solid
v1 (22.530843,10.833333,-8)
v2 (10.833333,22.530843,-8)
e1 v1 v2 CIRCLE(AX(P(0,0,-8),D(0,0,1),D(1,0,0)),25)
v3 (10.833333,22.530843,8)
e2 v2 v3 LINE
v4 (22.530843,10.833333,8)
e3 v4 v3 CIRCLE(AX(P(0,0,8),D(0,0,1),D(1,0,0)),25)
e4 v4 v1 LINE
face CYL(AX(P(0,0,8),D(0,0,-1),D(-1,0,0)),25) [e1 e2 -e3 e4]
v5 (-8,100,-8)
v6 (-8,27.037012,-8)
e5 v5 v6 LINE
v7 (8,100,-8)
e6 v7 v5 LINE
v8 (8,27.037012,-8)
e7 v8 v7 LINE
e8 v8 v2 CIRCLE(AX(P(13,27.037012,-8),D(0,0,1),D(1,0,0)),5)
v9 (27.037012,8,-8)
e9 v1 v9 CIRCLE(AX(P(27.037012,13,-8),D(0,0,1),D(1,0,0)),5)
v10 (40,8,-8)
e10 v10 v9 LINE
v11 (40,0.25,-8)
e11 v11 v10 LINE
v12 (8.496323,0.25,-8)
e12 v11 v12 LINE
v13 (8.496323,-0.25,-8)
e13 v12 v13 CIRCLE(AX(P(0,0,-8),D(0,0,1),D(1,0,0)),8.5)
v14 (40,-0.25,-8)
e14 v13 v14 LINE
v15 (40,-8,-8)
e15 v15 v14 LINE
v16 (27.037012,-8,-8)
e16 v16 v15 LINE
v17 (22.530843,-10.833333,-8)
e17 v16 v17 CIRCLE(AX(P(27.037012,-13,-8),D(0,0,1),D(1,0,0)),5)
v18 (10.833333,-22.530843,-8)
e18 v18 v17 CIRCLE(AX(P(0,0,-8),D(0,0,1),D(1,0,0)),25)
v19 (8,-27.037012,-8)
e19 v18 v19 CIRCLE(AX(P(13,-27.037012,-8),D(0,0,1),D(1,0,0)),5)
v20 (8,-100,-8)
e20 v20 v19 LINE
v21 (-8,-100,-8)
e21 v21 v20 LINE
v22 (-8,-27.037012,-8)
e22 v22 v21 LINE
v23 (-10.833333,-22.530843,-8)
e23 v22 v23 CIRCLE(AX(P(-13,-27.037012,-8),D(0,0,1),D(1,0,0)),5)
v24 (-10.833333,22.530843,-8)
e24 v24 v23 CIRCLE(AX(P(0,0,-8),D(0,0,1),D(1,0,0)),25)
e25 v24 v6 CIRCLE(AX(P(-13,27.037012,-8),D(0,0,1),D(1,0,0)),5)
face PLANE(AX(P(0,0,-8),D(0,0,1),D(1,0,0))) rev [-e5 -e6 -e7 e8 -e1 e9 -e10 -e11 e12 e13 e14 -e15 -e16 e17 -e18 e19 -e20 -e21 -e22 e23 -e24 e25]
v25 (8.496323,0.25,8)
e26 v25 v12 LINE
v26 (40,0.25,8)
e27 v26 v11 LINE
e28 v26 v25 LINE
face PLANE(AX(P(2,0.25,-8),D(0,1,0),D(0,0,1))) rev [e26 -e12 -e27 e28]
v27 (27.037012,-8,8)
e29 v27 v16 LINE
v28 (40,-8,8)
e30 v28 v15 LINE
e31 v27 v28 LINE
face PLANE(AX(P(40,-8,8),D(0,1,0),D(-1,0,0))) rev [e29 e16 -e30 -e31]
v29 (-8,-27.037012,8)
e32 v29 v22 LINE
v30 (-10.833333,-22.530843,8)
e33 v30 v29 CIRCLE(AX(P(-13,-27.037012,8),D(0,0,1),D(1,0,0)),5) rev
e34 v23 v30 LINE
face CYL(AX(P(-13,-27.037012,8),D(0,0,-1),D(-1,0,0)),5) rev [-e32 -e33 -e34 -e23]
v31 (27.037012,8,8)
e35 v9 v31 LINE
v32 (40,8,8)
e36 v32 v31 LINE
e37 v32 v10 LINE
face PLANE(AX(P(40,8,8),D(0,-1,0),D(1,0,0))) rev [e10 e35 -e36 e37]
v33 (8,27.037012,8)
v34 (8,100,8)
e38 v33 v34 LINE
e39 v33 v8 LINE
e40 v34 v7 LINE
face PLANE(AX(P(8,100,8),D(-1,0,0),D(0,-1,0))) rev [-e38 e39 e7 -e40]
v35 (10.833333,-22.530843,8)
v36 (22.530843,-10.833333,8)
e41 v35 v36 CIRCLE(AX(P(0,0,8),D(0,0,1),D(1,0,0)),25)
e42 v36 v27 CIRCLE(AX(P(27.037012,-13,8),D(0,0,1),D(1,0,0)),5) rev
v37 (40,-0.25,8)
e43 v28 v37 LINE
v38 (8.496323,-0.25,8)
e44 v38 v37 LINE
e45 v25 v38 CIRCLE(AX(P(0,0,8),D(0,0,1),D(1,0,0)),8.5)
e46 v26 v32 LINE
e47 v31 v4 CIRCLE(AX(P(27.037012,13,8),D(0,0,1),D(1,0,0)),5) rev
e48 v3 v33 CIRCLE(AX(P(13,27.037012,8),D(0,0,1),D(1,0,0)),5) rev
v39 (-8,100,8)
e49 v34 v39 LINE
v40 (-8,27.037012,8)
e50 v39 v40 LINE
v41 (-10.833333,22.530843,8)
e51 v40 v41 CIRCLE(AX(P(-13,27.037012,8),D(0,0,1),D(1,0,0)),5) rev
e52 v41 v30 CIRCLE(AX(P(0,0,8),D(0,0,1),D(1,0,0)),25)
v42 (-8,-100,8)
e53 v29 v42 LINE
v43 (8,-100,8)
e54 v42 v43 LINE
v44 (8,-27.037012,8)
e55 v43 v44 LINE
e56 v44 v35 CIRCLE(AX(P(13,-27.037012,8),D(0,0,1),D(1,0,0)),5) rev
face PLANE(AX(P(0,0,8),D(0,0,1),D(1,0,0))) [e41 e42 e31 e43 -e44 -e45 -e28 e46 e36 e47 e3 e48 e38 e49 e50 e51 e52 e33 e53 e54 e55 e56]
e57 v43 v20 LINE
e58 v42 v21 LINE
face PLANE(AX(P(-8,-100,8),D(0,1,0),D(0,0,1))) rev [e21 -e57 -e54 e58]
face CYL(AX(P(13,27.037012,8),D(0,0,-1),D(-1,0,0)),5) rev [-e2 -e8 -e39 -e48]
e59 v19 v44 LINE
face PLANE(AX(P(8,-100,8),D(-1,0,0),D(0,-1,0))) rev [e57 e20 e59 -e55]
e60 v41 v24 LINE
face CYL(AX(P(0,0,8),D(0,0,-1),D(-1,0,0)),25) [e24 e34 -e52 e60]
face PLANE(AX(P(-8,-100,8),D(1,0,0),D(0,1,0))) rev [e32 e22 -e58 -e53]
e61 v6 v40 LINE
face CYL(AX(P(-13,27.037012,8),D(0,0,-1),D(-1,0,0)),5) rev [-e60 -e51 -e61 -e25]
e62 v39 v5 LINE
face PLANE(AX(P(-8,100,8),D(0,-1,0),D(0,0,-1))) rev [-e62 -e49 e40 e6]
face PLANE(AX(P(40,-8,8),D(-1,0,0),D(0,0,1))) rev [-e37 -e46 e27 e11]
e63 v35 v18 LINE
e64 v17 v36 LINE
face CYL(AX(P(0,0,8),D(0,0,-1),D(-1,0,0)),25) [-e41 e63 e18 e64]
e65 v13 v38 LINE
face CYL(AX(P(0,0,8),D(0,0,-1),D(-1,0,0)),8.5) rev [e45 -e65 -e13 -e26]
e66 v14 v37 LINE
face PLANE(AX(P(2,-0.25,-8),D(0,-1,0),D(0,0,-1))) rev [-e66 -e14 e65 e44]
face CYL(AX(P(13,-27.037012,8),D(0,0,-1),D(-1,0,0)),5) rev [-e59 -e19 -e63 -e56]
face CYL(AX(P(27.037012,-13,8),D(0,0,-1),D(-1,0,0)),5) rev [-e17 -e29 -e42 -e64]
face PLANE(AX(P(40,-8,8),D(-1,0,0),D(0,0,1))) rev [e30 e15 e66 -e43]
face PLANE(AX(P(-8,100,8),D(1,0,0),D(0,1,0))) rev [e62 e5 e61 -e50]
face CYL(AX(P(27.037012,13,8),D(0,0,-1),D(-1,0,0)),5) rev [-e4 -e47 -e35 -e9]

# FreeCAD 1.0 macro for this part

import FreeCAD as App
import Part
import Sketcher

V = App.Vector


def edges_at(feature, points):
    """Names of the edges that pass closest to the given points."""
    edges = feature.Shape.Edges
    near = lambda p: min(range(len(edges)), key=lambda i: edges[i].distToShape(Part.Vertex(*p))[0])
    return sorted({f"Edge{near(p) + 1}" for p in points})


def add_polygon(sketch, points):
    """Adds a closed chain of lines whose ends are joined by coincident constraints."""
    first, n = sketch.GeometryCount, len(points)
    for a, b in zip(points, points[1:] + points[:1]):
        sketch.addGeometry(Part.LineSegment(App.Vector(*a, 0), App.Vector(*b, 0)), False)
    for i in range(n):
        sketch.addConstraint(Sketcher.Constraint("Coincident", first + i, 2, first + (i + 1) % n, 1))

doc = App.newDocument("Part")
body = doc.addObject("PartDesign::Body", "Body")

# Sketch on XY plane
sketch1 = body.newObject("Sketcher::SketchObject", "Sketch")
sketch1.AttachmentSupport = (doc.getObject("XY_Plane"), [""])
sketch1.MapMode = "FlatFace"
sketch1.addGeometry(Part.Circle(V(0, 0, 0), V(0, 0, 1), 25), False)
sketch1.addGeometry(Part.Circle(V(0, 0, 0), V(0, 0, 1), 8), False)
sketch1.addConstraint(Sketcher.Constraint("Coincident", 0, 3, -1, 1))
sketch1.addConstraint(Sketcher.Constraint("Coincident", 1, 3, -1, 1))
sketch1.addConstraint(Sketcher.Constraint("Diameter", 0, 50.0))
sketch1.addConstraint(Sketcher.Constraint("Diameter", 1, 17.0))
pad1 = body.newObject("PartDesign::Pad", "Pad")
pad1.Profile = sketch1
pad1.Length = 16
pad1.Midplane = True

# Sketch on XY plane
sketch2 = body.newObject("Sketcher::SketchObject", "Sketch001")
sketch2.AttachmentSupport = (doc.getObject("XY_Plane"), [""])
sketch2.MapMode = "FlatFace"
add_polygon(sketch2, [(-8, 100), (-8, 24), (8, 24), (8, 100)])  # lines 0-3
sketch2.addConstraint(Sketcher.Constraint("Vertical", 0))
sketch2.addConstraint(Sketcher.Constraint("Horizontal", 1))
sketch2.addConstraint(Sketcher.Constraint("Vertical", 2))
sketch2.addConstraint(Sketcher.Constraint("Horizontal", 3))
sketch2.addConstraint(Sketcher.Constraint("DistanceX", 1, 1, 1, 2, 16.0))
sketch2.addConstraint(Sketcher.Constraint("DistanceX", 0, 2, -1, 1, 8.0))
sketch2.addConstraint(Sketcher.Constraint("DistanceY", -1, 1, 2, 2, 100.0))
sketch2.addConstraint(Sketcher.Constraint("DistanceY", 0, 2, 0, 1, 76.314561))
pad2 = body.newObject("PartDesign::Pad", "Pad001")
pad2.Profile = sketch2
pad2.Length = 16
pad2.Midplane = True

# Sketch on XY plane
sketch3 = body.newObject("Sketcher::SketchObject", "Sketch002")
sketch3.AttachmentSupport = (doc.getObject("XY_Plane"), [""])
sketch3.MapMode = "FlatFace"
add_polygon(sketch3, [(-8, -24), (-8, -100), (8, -100), (8, -24)])  # lines 0-3
sketch3.addConstraint(Sketcher.Constraint("Vertical", 0))
sketch3.addConstraint(Sketcher.Constraint("Horizontal", 1))
sketch3.addConstraint(Sketcher.Constraint("Vertical", 2))
sketch3.addConstraint(Sketcher.Constraint("Horizontal", 3))
sketch3.addConstraint(Sketcher.Constraint("DistanceX", 1, 1, 1, 2, 16.0))
sketch3.addConstraint(Sketcher.Constraint("DistanceX", 0, 2, -1, 1, 8.0))
sketch3.addConstraint(Sketcher.Constraint("DistanceY", 0, 2, -1, 1, 100.0))
sketch3.addConstraint(Sketcher.Constraint("DistanceY", 0, 2, 0, 1, 76.314561))
pad3 = body.newObject("PartDesign::Pad", "Pad002")
pad3.Profile = sketch3
pad3.Length = 16
pad3.Midplane = True

# Sketch on XY plane
sketch4 = body.newObject("Sketcher::SketchObject", "Sketch003")
sketch4.AttachmentSupport = (doc.getObject("XY_Plane"), [""])
sketch4.MapMode = "FlatFace"
add_polygon(sketch4, [(24, 8), (24, -8), (40, -8), (40, 8)])  # lines 0-3
sketch4.addConstraint(Sketcher.Constraint("Vertical", 0))
sketch4.addConstraint(Sketcher.Constraint("Horizontal", 1))
sketch4.addConstraint(Sketcher.Constraint("Vertical", 2))
sketch4.addConstraint(Sketcher.Constraint("Horizontal", 3))
sketch4.addConstraint(Sketcher.Constraint("DistanceY", 0, 2, 0, 1, 16.0))
sketch4.addConstraint(Sketcher.Constraint("DistanceY", 0, 2, -1, 1, 8.0))
sketch4.addConstraint(Sketcher.Constraint("DistanceX", -1, 1, 1, 2, 40.0))
sketch4.addConstraint(Sketcher.Constraint("DistanceX", 1, 1, 1, 2, 16.314561))
pad4 = body.newObject("PartDesign::Pad", "Pad003")
pad4.Profile = sketch4
pad4.Length = 16
pad4.Midplane = True

# Sketch on XY plane
sketch5 = body.newObject("Sketcher::SketchObject", "Sketch004")
sketch5.AttachmentSupport = (doc.getObject("XY_Plane"), [""])
sketch5.MapMode = "FlatFace"
add_polygon(sketch5, [(2, 0.2), (2, -0.2), (50, -0.2), (50, 0.2)])  # lines 0-3
sketch5.addConstraint(Sketcher.Constraint("Vertical", 0))
sketch5.addConstraint(Sketcher.Constraint("Horizontal", 1))
sketch5.addConstraint(Sketcher.Constraint("Vertical", 2))
sketch5.addConstraint(Sketcher.Constraint("Horizontal", 3))
sketch5.addConstraint(Sketcher.Constraint("DistanceX", 1, 1, 1, 2, 48.0))
sketch5.addConstraint(Sketcher.Constraint("DistanceY", 0, 2, 0, 1, 0.5))
sketch5.addConstraint(Sketcher.Constraint("DistanceX", -1, 1, 0, 2, 2.0))
sketch5.addConstraint(Sketcher.Constraint("DistanceY", 0, 2, -1, 1, 0.25))
pocket1 = body.newObject("PartDesign::Pocket", "Pocket")
pocket1.Profile = sketch5
pocket1.Type = "ThroughAll"
pocket1.Midplane = True
doc.recompute()

fillet = body.newObject("PartDesign::Fillet", "Fillet")
fillet.Base = (pocket1, edges_at(pocket1, [
    (8, 23.685, 0),
    (-8, 23.685, 0),
    (8, -23.685, 0),
    (-8, -23.685, 0),
    (23.685, -8, 0),
    (23.685, 8, 0),
]))
fillet.Radius = 5

doc.recompute()
